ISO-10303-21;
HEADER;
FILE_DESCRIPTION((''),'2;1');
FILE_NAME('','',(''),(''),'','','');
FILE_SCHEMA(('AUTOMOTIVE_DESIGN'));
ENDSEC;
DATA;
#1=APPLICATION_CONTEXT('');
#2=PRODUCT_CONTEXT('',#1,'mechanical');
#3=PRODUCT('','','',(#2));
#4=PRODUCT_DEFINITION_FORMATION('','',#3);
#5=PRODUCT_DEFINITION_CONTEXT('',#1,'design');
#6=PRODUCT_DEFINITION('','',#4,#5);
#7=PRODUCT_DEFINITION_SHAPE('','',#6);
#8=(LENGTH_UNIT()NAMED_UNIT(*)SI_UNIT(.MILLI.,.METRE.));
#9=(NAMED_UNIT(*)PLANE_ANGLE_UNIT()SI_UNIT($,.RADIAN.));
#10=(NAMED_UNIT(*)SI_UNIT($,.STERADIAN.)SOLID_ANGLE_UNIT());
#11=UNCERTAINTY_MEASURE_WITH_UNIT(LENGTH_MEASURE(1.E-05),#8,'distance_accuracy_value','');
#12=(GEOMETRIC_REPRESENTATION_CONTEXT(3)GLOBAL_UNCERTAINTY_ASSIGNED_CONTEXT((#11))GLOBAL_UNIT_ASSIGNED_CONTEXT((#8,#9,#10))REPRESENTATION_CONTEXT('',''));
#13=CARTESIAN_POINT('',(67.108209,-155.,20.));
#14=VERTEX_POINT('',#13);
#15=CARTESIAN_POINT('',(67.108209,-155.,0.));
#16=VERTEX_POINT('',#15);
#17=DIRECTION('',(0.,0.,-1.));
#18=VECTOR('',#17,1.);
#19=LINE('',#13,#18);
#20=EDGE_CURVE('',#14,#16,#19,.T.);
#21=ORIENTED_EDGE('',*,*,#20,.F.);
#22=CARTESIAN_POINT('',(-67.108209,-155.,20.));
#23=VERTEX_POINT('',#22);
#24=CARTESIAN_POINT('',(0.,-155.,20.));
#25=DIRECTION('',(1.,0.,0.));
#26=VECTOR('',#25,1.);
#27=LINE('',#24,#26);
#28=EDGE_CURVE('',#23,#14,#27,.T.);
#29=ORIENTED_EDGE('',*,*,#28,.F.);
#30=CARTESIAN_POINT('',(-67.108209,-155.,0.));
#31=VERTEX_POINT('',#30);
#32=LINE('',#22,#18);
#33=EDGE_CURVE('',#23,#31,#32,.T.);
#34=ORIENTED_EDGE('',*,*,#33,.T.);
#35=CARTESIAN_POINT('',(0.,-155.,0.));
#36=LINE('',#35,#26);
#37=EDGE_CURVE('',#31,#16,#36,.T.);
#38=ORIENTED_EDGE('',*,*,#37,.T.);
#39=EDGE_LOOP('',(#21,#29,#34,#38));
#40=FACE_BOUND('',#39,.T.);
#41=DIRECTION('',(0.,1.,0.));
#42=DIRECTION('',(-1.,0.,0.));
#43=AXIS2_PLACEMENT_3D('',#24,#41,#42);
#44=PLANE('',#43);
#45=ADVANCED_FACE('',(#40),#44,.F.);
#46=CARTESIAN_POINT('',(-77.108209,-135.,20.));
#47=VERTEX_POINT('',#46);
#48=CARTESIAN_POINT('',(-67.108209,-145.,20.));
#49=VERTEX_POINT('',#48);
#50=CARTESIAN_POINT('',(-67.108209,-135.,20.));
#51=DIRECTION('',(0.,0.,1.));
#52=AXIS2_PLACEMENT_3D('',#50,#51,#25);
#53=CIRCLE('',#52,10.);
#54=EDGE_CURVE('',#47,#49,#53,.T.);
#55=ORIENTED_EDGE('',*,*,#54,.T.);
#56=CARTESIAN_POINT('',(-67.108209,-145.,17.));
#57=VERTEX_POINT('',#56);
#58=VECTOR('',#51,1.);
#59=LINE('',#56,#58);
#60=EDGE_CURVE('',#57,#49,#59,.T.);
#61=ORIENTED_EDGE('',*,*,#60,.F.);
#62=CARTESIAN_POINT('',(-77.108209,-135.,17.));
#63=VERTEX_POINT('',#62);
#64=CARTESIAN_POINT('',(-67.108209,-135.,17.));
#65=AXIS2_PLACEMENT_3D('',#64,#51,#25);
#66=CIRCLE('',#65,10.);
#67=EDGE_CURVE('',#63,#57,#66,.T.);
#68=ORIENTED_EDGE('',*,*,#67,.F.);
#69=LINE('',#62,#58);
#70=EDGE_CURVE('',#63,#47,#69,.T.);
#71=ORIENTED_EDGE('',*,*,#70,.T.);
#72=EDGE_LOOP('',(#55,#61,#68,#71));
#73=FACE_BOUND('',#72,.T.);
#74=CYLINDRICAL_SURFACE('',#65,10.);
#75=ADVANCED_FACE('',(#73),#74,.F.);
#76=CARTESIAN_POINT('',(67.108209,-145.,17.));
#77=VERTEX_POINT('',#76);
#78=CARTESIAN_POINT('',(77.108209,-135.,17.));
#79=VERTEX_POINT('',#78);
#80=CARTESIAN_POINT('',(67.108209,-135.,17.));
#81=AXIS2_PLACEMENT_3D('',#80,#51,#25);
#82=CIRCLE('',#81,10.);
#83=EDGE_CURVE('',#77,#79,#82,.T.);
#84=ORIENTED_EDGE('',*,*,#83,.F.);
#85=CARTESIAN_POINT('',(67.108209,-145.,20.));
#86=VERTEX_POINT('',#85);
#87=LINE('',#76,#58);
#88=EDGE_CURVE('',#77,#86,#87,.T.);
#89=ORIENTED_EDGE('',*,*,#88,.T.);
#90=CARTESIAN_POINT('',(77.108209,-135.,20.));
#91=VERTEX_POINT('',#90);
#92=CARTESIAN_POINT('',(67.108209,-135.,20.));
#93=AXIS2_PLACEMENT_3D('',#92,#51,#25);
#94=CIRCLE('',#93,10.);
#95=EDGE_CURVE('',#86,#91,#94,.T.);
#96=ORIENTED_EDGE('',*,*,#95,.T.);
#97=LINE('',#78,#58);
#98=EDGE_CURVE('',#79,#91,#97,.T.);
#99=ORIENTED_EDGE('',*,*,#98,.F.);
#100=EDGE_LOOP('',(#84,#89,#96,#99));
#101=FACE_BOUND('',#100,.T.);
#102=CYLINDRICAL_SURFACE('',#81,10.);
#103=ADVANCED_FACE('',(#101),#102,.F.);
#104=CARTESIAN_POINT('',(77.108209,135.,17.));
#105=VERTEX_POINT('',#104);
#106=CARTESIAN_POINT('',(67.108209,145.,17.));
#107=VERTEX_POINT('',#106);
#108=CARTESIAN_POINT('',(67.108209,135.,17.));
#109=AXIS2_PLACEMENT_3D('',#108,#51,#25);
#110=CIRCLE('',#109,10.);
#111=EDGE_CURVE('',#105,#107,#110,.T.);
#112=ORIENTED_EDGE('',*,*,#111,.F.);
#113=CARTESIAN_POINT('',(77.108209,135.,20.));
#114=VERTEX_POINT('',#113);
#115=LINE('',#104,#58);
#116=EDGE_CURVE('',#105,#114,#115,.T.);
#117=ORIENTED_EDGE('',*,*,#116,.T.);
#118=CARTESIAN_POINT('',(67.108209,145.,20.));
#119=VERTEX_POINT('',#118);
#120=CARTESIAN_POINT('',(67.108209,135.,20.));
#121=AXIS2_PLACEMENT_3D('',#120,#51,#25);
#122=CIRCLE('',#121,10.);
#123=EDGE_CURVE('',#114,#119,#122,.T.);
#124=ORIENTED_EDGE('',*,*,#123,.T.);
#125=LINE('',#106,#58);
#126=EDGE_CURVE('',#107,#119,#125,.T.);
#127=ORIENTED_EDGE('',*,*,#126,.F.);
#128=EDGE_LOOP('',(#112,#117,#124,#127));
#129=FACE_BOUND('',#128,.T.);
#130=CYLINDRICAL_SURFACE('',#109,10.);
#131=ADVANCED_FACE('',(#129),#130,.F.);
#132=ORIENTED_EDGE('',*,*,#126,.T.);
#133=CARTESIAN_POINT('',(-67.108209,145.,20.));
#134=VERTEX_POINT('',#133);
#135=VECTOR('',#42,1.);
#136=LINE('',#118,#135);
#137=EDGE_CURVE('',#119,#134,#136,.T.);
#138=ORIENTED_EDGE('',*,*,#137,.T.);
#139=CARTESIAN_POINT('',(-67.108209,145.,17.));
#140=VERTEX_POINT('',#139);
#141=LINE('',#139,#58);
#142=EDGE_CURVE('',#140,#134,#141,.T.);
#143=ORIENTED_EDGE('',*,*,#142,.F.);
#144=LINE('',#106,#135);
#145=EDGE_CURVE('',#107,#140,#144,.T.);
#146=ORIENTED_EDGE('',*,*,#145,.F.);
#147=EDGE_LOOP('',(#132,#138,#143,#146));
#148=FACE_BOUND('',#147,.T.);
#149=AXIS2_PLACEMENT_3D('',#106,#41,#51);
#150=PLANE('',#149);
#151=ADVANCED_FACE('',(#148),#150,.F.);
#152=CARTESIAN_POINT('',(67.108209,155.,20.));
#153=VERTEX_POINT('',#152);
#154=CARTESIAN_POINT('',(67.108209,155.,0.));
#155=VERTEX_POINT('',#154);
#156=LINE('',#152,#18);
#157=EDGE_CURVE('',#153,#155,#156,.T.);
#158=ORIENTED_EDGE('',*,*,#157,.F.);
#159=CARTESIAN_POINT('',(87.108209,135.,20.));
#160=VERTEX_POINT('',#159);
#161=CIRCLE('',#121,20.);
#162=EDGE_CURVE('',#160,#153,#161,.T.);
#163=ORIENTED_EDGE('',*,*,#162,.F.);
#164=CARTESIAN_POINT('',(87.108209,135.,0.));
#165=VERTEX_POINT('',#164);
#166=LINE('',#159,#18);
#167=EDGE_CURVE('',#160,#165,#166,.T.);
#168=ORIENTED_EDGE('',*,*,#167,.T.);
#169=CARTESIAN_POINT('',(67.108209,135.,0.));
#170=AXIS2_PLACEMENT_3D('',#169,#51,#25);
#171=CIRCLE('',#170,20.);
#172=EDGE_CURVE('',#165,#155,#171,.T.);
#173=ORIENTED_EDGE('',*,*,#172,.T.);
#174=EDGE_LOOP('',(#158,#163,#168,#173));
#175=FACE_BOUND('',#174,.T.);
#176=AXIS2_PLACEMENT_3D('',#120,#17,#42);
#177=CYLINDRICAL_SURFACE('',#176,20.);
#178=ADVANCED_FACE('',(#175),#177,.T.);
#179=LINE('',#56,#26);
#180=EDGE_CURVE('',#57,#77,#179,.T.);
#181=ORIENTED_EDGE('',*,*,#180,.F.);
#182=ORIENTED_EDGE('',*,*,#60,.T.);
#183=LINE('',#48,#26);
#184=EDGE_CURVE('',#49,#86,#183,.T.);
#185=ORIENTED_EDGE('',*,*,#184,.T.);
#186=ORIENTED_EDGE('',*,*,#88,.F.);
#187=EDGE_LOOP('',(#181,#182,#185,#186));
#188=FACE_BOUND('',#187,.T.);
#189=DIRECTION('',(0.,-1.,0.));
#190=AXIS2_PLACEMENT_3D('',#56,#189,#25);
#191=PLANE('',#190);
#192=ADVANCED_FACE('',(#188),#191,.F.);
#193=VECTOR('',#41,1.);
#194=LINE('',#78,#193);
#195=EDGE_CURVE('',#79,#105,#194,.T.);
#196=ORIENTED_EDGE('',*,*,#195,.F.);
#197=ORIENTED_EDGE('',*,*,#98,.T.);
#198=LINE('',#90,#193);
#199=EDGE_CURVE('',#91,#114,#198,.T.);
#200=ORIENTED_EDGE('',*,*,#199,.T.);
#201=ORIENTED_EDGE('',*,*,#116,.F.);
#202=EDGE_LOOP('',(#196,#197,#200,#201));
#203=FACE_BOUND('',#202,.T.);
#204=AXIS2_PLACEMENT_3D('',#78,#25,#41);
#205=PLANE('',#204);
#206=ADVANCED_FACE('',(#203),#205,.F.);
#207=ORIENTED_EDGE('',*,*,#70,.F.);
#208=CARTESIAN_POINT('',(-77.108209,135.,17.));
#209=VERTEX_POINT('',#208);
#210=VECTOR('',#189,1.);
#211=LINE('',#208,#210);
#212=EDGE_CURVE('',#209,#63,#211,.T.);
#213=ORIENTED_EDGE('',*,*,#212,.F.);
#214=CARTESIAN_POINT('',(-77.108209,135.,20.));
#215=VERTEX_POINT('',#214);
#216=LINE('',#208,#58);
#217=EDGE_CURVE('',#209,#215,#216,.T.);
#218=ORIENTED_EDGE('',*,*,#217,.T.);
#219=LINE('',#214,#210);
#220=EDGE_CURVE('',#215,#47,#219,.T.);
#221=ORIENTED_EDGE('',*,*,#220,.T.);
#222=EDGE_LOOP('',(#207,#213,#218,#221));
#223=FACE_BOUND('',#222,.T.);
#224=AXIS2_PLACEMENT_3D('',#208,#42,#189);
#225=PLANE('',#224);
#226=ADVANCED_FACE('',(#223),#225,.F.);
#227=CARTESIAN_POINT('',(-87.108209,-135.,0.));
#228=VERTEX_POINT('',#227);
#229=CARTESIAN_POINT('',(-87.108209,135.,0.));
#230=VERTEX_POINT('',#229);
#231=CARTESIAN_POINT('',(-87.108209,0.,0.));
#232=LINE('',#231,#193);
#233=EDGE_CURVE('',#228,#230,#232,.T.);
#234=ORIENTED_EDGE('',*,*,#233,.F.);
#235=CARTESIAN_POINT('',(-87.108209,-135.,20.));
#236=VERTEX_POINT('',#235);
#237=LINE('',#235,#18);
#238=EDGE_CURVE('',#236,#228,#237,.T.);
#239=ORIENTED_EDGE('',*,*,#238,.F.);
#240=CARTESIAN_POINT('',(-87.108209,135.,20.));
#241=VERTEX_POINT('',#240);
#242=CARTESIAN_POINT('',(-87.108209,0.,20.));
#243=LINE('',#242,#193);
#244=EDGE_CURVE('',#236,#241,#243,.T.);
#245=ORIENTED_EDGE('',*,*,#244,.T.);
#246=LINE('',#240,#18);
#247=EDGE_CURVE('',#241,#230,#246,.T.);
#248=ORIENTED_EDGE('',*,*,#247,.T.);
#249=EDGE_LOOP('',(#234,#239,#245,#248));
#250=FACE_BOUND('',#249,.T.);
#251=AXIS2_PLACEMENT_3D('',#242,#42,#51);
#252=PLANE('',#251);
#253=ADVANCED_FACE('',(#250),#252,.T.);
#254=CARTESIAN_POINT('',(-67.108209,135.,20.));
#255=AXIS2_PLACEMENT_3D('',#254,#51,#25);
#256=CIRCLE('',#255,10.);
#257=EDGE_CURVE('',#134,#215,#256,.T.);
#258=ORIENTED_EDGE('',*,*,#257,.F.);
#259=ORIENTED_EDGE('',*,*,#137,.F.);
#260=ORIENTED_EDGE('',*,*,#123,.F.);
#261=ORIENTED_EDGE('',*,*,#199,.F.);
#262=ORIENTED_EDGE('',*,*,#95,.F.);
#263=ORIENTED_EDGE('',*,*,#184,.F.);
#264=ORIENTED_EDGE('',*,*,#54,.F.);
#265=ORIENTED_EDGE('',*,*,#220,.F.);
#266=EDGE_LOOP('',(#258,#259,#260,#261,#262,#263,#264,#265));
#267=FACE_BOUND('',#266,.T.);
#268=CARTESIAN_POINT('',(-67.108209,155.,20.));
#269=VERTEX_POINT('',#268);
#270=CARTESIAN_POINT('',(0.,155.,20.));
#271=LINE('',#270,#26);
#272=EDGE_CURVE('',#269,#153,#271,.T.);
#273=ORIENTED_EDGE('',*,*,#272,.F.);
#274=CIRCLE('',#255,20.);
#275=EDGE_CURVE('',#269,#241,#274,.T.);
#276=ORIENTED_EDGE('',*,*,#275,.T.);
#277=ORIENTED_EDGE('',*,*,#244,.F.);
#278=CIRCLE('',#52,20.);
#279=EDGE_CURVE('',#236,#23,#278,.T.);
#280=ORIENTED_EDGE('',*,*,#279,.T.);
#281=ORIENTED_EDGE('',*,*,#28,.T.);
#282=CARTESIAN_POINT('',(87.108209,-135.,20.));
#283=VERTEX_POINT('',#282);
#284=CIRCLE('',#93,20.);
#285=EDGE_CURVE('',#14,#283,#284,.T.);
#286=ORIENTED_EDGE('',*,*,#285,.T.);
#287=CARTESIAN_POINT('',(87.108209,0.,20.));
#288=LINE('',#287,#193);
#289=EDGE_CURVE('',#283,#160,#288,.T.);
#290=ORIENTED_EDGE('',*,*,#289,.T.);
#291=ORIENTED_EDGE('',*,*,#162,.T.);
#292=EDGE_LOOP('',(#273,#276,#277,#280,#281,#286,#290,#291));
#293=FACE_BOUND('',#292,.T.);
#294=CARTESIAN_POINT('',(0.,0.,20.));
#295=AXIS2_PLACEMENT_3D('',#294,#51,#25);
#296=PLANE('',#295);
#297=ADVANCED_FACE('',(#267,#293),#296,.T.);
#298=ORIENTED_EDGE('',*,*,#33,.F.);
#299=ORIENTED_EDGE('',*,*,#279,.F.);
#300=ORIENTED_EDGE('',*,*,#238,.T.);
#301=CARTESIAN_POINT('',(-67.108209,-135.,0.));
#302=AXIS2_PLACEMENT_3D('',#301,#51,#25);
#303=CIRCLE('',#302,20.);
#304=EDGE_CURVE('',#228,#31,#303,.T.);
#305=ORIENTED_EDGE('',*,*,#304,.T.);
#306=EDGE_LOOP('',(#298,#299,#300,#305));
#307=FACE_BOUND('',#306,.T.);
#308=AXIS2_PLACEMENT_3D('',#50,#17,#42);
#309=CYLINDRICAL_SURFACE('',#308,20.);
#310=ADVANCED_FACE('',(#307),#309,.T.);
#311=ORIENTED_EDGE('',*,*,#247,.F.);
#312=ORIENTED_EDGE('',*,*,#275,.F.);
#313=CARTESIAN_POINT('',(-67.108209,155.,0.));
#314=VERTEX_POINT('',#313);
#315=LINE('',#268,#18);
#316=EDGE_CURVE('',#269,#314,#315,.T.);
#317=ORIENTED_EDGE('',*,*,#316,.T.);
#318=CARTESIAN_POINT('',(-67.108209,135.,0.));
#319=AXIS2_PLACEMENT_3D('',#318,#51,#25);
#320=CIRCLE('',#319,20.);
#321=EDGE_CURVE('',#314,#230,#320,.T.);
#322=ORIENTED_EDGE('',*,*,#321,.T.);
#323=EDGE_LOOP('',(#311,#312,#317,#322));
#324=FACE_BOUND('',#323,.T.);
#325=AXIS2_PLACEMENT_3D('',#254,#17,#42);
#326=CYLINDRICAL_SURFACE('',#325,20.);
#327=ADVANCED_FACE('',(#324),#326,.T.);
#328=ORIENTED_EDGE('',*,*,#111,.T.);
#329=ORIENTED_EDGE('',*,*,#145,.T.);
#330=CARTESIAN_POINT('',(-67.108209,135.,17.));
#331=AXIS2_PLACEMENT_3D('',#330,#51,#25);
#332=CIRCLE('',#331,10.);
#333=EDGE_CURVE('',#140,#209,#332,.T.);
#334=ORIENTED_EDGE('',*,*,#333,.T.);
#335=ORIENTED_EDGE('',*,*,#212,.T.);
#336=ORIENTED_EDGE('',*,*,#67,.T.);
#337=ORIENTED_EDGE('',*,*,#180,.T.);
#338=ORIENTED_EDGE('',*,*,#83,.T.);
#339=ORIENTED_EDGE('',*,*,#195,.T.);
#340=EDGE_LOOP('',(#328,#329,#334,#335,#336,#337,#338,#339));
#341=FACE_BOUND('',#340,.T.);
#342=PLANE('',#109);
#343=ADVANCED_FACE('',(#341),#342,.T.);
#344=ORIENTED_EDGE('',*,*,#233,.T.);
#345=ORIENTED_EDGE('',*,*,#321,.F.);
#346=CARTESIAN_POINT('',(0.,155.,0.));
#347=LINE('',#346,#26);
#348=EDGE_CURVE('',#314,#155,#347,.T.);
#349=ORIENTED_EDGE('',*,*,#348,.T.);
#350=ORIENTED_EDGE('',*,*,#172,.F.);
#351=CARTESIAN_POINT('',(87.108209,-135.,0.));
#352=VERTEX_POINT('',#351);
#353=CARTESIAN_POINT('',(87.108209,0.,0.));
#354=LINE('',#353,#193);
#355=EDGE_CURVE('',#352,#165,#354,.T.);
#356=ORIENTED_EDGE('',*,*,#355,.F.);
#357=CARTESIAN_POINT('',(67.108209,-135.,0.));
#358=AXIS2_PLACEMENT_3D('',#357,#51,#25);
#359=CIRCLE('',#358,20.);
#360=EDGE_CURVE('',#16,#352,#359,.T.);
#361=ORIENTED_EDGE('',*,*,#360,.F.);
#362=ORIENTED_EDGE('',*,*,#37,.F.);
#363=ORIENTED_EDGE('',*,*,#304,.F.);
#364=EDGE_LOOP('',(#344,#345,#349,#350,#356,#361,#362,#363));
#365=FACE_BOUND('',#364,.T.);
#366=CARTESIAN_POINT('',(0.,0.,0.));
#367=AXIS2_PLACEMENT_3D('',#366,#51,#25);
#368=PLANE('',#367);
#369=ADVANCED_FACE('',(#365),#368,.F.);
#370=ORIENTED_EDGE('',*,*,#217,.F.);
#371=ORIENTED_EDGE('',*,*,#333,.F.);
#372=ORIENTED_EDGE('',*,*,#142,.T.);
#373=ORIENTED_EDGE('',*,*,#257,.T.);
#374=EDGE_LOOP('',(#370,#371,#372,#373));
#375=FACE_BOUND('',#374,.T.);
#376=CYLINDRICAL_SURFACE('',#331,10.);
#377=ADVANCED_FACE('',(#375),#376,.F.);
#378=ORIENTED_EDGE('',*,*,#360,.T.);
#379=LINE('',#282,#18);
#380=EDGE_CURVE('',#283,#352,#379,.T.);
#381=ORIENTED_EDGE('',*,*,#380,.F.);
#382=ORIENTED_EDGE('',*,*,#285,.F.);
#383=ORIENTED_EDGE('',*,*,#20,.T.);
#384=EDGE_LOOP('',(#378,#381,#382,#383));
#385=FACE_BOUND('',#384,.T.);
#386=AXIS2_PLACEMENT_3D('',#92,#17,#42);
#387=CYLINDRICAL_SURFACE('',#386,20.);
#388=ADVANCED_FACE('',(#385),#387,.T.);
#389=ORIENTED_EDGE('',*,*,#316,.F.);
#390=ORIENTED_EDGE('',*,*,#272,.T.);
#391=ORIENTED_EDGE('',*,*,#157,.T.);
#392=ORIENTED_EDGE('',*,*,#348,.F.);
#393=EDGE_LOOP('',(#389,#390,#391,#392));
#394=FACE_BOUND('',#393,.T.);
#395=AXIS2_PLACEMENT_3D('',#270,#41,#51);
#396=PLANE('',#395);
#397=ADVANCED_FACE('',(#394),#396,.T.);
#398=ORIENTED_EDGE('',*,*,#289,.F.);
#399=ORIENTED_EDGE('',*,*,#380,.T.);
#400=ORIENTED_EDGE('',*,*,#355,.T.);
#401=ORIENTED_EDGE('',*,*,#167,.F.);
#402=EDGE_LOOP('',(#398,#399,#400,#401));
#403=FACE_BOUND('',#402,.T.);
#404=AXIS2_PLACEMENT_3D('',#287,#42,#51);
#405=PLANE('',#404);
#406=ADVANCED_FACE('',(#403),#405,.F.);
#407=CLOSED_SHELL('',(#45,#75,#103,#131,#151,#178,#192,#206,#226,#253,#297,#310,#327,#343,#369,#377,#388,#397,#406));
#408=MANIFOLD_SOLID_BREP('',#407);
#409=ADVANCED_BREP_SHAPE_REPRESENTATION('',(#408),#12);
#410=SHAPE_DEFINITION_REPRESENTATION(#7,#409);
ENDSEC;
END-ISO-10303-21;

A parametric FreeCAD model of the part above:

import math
import FreeCAD as App
import Part
import Sketcher

V = App.Vector
Q = App.Units.Quantity

doc = App.newDocument("Part")
body = doc.addObject("PartDesign::Body", "Body")

sketch1 = body.newObject("Sketcher::SketchObject", "Sketch")
sketch1.AttachmentSupport = (doc.getObject("XY_Plane"), [""])
sketch1.MapMode = "FlatFace"
sketch1.addGeometry([
    Part.LineSegment(V(67, 155, 0), V(-67, 155, 0)),
    Part.ArcOfCircle(Part.Circle(V(-67, 135, 0), V(0, 0, 1), 20), math.radians(90), math.radians(180)),
    Part.LineSegment(V(-87, 135, 0), V(-87, -135, 0)),
    Part.ArcOfCircle(Part.Circle(V(-67, -135, 0), V(0, 0, 1), 20), math.radians(180), math.radians(270)),
    Part.LineSegment(V(-67, -155, 0), V(67, -155, 0)),
    Part.ArcOfCircle(Part.Circle(V(67, -135, 0), V(0, 0, 1), 20), math.radians(-90), math.radians(0)),
    Part.LineSegment(V(87, -135, 0), V(87, 135, 0)),
    Part.ArcOfCircle(Part.Circle(V(67, 135, 0), V(0, 0, 1), 20), math.radians(0), math.radians(90)),
], False)
sketch1.addConstraint([
    Sketcher.Constraint("Tangent", 0, 2, 1, 1),
    Sketcher.Constraint("Tangent", 1, 2, 2, 1),
    Sketcher.Constraint("Tangent", 2, 2, 3, 1),
    Sketcher.Constraint("Tangent", 3, 2, 4, 1),
    Sketcher.Constraint("Tangent", 4, 2, 5, 1),
    Sketcher.Constraint("Tangent", 5, 2, 6, 1),
    Sketcher.Constraint("Tangent", 6, 2, 7, 1),
    Sketcher.Constraint("Tangent", 7, 2, 0, 1),
    Sketcher.Constraint("Horizontal", 0),
    Sketcher.Constraint("Vertical", 2),
    Sketcher.Constraint("Horizontal", 4),
    Sketcher.Constraint("Vertical", 6),
    Sketcher.Constraint("Equal", 1, 3),
    Sketcher.Constraint("Equal", 3, 5),
    Sketcher.Constraint("Equal", 5, 7),
    Sketcher.Constraint("Symmetric", 1, 3, 5, 3, -1, 1),
    Sketcher.Constraint("Radius", 1, Q("20 mm")),
    Sketcher.Constraint("DistanceY", 2, 2, 2, 1, Q("270 mm")),
    Sketcher.Constraint("DistanceX", 0, 2, 0, 1, Q("134.216417 mm")),
])
pad1 = body.newObject("PartDesign::Pad", "Pad")
pad1.Profile = sketch1
pad1.Length = 20

sketch2 = body.newObject("Sketcher::SketchObject", "Sketch001")
sketch2.AttachmentSupport = (doc.getObject("XY_Plane"), [""])
sketch2.MapMode = "FlatFace"
sketch2.AttachmentOffset = App.Placement(V(0, 0, 20), App.Rotation())
sketch2.addGeometry([
    Part.LineSegment(V(67, 145, 0), V(-67, 145, 0)),
    Part.ArcOfCircle(Part.Circle(V(-67, 135, 0), V(0, 0, 1), 10), math.radians(90), math.radians(180)),
    Part.LineSegment(V(-77, 135, 0), V(-77, -135, 0)),
    Part.ArcOfCircle(Part.Circle(V(-67, -135, 0), V(0, 0, 1), 10), math.radians(180), math.radians(270)),
    Part.LineSegment(V(-67, -145, 0), V(67, -145, 0)),
    Part.ArcOfCircle(Part.Circle(V(67, -135, 0), V(0, 0, 1), 10), math.radians(-90), math.radians(0)),
    Part.LineSegment(V(77, -135, 0), V(77, 135, 0)),
    Part.ArcOfCircle(Part.Circle(V(67, 135, 0), V(0, 0, 1), 10), math.radians(0), math.radians(90)),
], False)
sketch2.addConstraint([
    Sketcher.Constraint("Tangent", 0, 2, 1, 1),
    Sketcher.Constraint("Tangent", 1, 2, 2, 1),
    Sketcher.Constraint("Tangent", 2, 2, 3, 1),
    Sketcher.Constraint("Tangent", 3, 2, 4, 1),
    Sketcher.Constraint("Tangent", 4, 2, 5, 1),
    Sketcher.Constraint("Tangent", 5, 2, 6, 1),
    Sketcher.Constraint("Tangent", 6, 2, 7, 1),
    Sketcher.Constraint("Tangent", 7, 2, 0, 1),
    Sketcher.Constraint("Horizontal", 0),
    Sketcher.Constraint("Vertical", 2),
    Sketcher.Constraint("Horizontal", 4),
    Sketcher.Constraint("Vertical", 6),
    Sketcher.Constraint("Equal", 1, 3),
    Sketcher.Constraint("Equal", 3, 5),
    Sketcher.Constraint("Equal", 5, 7),
    Sketcher.Constraint("Symmetric", 1, 3, 5, 3, -1, 1),
    Sketcher.Constraint("Radius", 1, Q("10 mm")),
    Sketcher.Constraint("DistanceY", 2, 2, 2, 1, Q("270 mm")),
    Sketcher.Constraint("DistanceX", 0, 2, 0, 1, Q("134.216417 mm")),
])
pocket1 = body.newObject("PartDesign::Pocket", "Pocket")
pocket1.Profile = sketch2
pocket1.Length = 3

doc.recompute()
